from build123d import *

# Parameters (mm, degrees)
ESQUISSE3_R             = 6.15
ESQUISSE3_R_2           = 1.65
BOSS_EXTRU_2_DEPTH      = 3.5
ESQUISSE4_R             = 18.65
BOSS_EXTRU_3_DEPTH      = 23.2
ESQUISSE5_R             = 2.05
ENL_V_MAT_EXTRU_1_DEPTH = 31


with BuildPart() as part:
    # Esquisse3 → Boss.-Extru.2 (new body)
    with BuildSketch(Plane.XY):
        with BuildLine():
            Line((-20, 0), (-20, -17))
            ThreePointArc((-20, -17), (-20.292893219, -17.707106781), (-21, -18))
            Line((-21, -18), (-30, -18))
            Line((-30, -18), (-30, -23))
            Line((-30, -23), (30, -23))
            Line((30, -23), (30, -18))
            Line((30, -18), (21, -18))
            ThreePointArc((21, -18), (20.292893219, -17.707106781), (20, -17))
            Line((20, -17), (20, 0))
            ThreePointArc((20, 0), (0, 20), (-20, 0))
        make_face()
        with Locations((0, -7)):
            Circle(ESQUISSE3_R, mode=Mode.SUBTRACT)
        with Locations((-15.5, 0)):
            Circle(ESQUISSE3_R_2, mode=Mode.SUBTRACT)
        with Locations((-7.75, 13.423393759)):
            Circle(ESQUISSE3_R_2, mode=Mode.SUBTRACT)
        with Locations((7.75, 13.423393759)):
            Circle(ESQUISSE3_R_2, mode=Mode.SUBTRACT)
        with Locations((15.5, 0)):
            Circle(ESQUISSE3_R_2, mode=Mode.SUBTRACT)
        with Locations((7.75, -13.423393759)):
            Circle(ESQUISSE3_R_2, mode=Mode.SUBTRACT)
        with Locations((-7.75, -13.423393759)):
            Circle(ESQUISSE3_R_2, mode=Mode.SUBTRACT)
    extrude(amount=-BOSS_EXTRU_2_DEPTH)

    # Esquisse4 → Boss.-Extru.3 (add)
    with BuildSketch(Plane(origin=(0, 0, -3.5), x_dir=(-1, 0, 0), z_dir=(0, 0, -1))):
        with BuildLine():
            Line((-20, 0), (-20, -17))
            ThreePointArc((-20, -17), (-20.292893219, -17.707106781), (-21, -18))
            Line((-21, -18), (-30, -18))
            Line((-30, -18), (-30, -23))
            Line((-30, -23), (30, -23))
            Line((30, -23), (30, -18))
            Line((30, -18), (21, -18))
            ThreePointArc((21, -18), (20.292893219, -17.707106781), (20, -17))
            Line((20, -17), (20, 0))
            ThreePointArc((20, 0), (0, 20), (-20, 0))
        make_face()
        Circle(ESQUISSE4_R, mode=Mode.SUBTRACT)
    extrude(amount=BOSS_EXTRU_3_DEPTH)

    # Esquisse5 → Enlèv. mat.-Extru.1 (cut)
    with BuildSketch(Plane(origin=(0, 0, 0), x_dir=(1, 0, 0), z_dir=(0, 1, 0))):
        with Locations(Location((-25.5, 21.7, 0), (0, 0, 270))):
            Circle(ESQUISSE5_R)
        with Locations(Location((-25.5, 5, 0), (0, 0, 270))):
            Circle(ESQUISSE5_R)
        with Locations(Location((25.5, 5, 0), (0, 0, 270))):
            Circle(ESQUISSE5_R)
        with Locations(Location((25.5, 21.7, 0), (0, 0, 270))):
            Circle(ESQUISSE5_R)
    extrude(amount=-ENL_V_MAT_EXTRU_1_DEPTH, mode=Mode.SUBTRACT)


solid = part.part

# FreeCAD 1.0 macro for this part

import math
import FreeCAD as App
import Part
import Sketcher
Q = App.Units.Quantity

doc = App.newDocument("Part")
body = doc.addObject("PartDesign::Body", "Body")

# Sketch on XY plane
sketch1 = body.newObject("Sketcher::SketchObject", "Sketch")
sketch1.AttachmentSupport = (doc.getObject("XY_Plane"), [""])
sketch1.MapMode = "FlatFace"
sketch1.addGeometry([
    Part.LineSegment(App.Vector(-20, 0, 0), App.Vector(-20, -17, 0)),  # 0
    Part.ArcOfCircle(Part.Circle(App.Vector(-21, -17, 0), App.Vector(0, 0, 1), 1), math.radians(-90), math.radians(0)),  # 1
    Part.LineSegment(App.Vector(-21, -18, 0), App.Vector(-30, -18, 0)),  # 2
    Part.LineSegment(App.Vector(-30, -18, 0), App.Vector(-30, -23, 0)),  # 3
    Part.LineSegment(App.Vector(-30, -23, 0), App.Vector(30, -23, 0)),  # 4
    Part.LineSegment(App.Vector(30, -23, 0), App.Vector(30, -18, 0)),  # 5
    Part.LineSegment(App.Vector(30, -18, 0), App.Vector(21, -18, 0)),  # 6
    Part.ArcOfCircle(Part.Circle(App.Vector(21, -17, 0), App.Vector(0, 0, 1), 1), math.radians(-180), math.radians(-90)),  # 7
    Part.LineSegment(App.Vector(20, -17, 0), App.Vector(20, 0, 0)),  # 8
    Part.ArcOfCircle(Part.Circle(App.Vector(0, 0, 0), App.Vector(0, 0, 1), 20), math.radians(0), math.radians(180)),  # 9
    Part.Circle(App.Vector(-7.75, -13.423394, 0), App.Vector(0, 0, 1), 1.65),  # 10
    Part.Circle(App.Vector(7.75, -13.423394, 0), App.Vector(0, 0, 1), 1.65),  # 11
    Part.Circle(App.Vector(0, -7, 0), App.Vector(0, 0, 1), 6.15),  # 12
    Part.Circle(App.Vector(-15.5, 0, 0), App.Vector(0, 0, 1), 1.65),  # 13
    Part.Circle(App.Vector(-7.75, 13.423394, 0), App.Vector(0, 0, 1), 1.65),  # 14
    Part.Circle(App.Vector(15.5, 0, 0), App.Vector(0, 0, 1), 1.65),  # 15
    Part.Circle(App.Vector(7.75, 13.423394, 0), App.Vector(0, 0, 1), 1.65),  # 16
], False)
sketch1.addConstraint([
    Sketcher.Constraint("Tangent", 0, 2, 1, 2),
    Sketcher.Constraint("Tangent", 1, 1, 2, 1),
    Sketcher.Constraint("Coincident", 2, 2, 3, 1),
    Sketcher.Constraint("Coincident", 3, 2, 4, 1),
    Sketcher.Constraint("Coincident", 4, 2, 5, 1),
    Sketcher.Constraint("Coincident", 5, 2, 6, 1),
    Sketcher.Constraint("Tangent", 6, 2, 7, 2),
    Sketcher.Constraint("Tangent", 7, 1, 8, 1),
    Sketcher.Constraint("Tangent", 8, 2, 9, 1),
    Sketcher.Constraint("Tangent", 9, 2, 0, 1),
    Sketcher.Constraint("Vertical", 0),
    Sketcher.Constraint("Horizontal", 2),
    Sketcher.Constraint("Vertical", 3),
    Sketcher.Constraint("Horizontal", 4),
    Sketcher.Constraint("Vertical", 5),
    Sketcher.Constraint("Horizontal", 6),
    Sketcher.Constraint("Vertical", 8),
    Sketcher.Constraint("Coincident", 9, 3, -1, 1),
    Sketcher.Constraint("Equal", 1, 7),
    Sketcher.Constraint("Equal", 10, 11),
    Sketcher.Constraint("Equal", 11, 13),
    Sketcher.Constraint("Equal", 13, 14),
    Sketcher.Constraint("Equal", 14, 15),
    Sketcher.Constraint("Equal", 15, 16),
    Sketcher.Constraint("Symmetric", 11, 3, 14, 3, -1, 1),
    Sketcher.Constraint("Symmetric", 13, 3, 15, 3, -1, 1),
    Sketcher.Constraint("Symmetric", 10, 3, 16, 3, -1, 1),
    Sketcher.Constraint("Symmetric", 10, 3, 11, 3, -2),
    Sketcher.Constraint("Symmetric", 2, 2, 5, 2, -2),
    Sketcher.Constraint("PointOnObject", 12, 3, -2),
    Sketcher.Constraint("PointOnObject", 13, 3, -1),
    Sketcher.Constraint("Radius", 1, Q("1 mm")),
    Sketcher.Constraint("Radius", 9, Q("20 mm")),
    Sketcher.Constraint("Diameter", 10, Q("3.3 mm")),
    Sketcher.Constraint("Diameter", 12, Q("12.3 mm")),
    Sketcher.Constraint("DistanceX", 2, 2, 2, 1, Q("9 mm")),
    Sketcher.Constraint("DistanceY", 0, 2, 0, 1, Q("17 mm")),
    Sketcher.Constraint("DistanceY", 3, 2, 3, 1, Q("5 mm")),
    Sketcher.Constraint("DistanceY", 12, 3, -1, 1, Q("7 mm")),
    Sketcher.Constraint("DistanceX", 13, 3, -1, 1, Q("15.5 mm")),
    Sketcher.Constraint("DistanceX", 10, 3, 11, 3, Q("15.5 mm")),
    Sketcher.Constraint("DistanceY", 10, 3, -1, 1, Q("13.423394 mm")),
])
pad1 = body.newObject("PartDesign::Pad", "Pad")
pad1.Profile = sketch1
pad1.Length = 3.5
pad1.Reversed = True

# Sketch on XY plane
sketch2 = body.newObject("Sketcher::SketchObject", "Sketch001")
sketch2.AttachmentSupport = (doc.getObject("XY_Plane"), [""])
sketch2.MapMode = "FlatFace"
sketch2.AttachmentOffset = App.Placement(App.Vector(0, 0, -3.5), App.Rotation())
sketch2.addGeometry([
    Part.LineSegment(App.Vector(20, 0, 0), App.Vector(20, -17, 0)),  # 0
    Part.ArcOfCircle(Part.Circle(App.Vector(21, -17, 0), App.Vector(0, 0, 1), 1), math.radians(-180), math.radians(-90)),  # 1
    Part.LineSegment(App.Vector(21, -18, 0), App.Vector(30, -18, 0)),  # 2
    Part.LineSegment(App.Vector(30, -18, 0), App.Vector(30, -23, 0)),  # 3
    Part.LineSegment(App.Vector(30, -23, 0), App.Vector(-30, -23, 0)),  # 4
    Part.LineSegment(App.Vector(-30, -23, 0), App.Vector(-30, -18, 0)),  # 5
    Part.LineSegment(App.Vector(-30, -18, 0), App.Vector(-21, -18, 0)),  # 6
    Part.ArcOfCircle(Part.Circle(App.Vector(-21, -17, 0), App.Vector(0, 0, 1), 1), math.radians(-90), math.radians(0)),  # 7
    Part.LineSegment(App.Vector(-20, -17, 0), App.Vector(-20, 0, 0)),  # 8
    Part.ArcOfCircle(Part.Circle(App.Vector(0, 0, 0), App.Vector(0, 0, 1), 20), math.radians(0), math.radians(180)),  # 9
    Part.Circle(App.Vector(0, 0, 0), App.Vector(0, 0, 1), 18.65),  # 10
], False)
sketch2.addConstraint([
    Sketcher.Constraint("Tangent", 0, 2, 1, 1),
    Sketcher.Constraint("Tangent", 1, 2, 2, 1),
    Sketcher.Constraint("Coincident", 2, 2, 3, 1),
    Sketcher.Constraint("Coincident", 3, 2, 4, 1),
    Sketcher.Constraint("Coincident", 4, 2, 5, 1),
    Sketcher.Constraint("Coincident", 5, 2, 6, 1),
    Sketcher.Constraint("Tangent", 6, 2, 7, 1),
    Sketcher.Constraint("Tangent", 7, 2, 8, 1),
    Sketcher.Constraint("Tangent", 8, 2, 9, 2),
    Sketcher.Constraint("Tangent", 9, 1, 0, 1),
    Sketcher.Constraint("Vertical", 0),
    Sketcher.Constraint("Horizontal", 2),
    Sketcher.Constraint("Vertical", 3),
    Sketcher.Constraint("Horizontal", 4),
    Sketcher.Constraint("Vertical", 5),
    Sketcher.Constraint("Horizontal", 6),
    Sketcher.Constraint("Vertical", 8),
    Sketcher.Constraint("Coincident", 9, 3, -1, 1),
    Sketcher.Constraint("Coincident", 10, 3, -1, 1),
    Sketcher.Constraint("Equal", 1, 7),
    Sketcher.Constraint("Symmetric", 2, 2, 5, 2, -2),
    Sketcher.Constraint("Radius", 1, Q("1 mm")),
    Sketcher.Constraint("Radius", 9, Q("20 mm")),
    Sketcher.Constraint("Diameter", 10, Q("37.3 mm")),
    Sketcher.Constraint("DistanceX", 2, 1, 2, 2, Q("9 mm")),
    Sketcher.Constraint("DistanceY", 0, 2, 0, 1, Q("17 mm")),
    Sketcher.Constraint("DistanceY", 3, 2, 3, 1, Q("5 mm")),
])
pad2 = body.newObject("PartDesign::Pad", "Pad001")
pad2.Profile = sketch2
pad2.Length = 23.2
pad2.Reversed = True

# Sketch on XZ plane
sketch3 = body.newObject("Sketcher::SketchObject", "Sketch002")
sketch3.AttachmentSupport = (doc.getObject("XZ_Plane"), [""])
sketch3.MapMode = "FlatFace"
sketch3.addGeometry([
    Part.Circle(App.Vector(-25.5, -21.7, 0), App.Vector(0, 0, 1), 2.05),
    Part.Circle(App.Vector(-25.5, -5, 0), App.Vector(0, 0, 1), 2.05),
    Part.Circle(App.Vector(25.5, -5, 0), App.Vector(0, 0, 1), 2.05),
    Part.Circle(App.Vector(25.5, -21.7, 0), App.Vector(0, 0, 1), 2.05),
], False)
sketch3.addConstraint([
    Sketcher.Constraint("Equal", 0, 1),
    Sketcher.Constraint("Equal", 1, 2),
    Sketcher.Constraint("Equal", 2, 3),
    Sketcher.Constraint("Symmetric", 1, 3, 2, 3, -2),
    Sketcher.Constraint("Symmetric", 0, 3, 3, 3, -2),
    Sketcher.Constraint("Vertical", 0, 3, 1, 3),
    Sketcher.Constraint("Diameter", 0, Q("4.1 mm")),
    Sketcher.Constraint("DistanceY", 1, 3, -1, 1, Q("5 mm")),
    Sketcher.Constraint("DistanceX", 1, 3, 2, 3, Q("51 mm")),
    Sketcher.Constraint("DistanceY", 0, 3, -1, 1, Q("21.7 mm")),
])
pocket1 = body.newObject("PartDesign::Pocket", "Pocket")
pocket1.Profile = sketch3
pocket1.Length = 31
pocket1.Reversed = True

doc.recompute()
